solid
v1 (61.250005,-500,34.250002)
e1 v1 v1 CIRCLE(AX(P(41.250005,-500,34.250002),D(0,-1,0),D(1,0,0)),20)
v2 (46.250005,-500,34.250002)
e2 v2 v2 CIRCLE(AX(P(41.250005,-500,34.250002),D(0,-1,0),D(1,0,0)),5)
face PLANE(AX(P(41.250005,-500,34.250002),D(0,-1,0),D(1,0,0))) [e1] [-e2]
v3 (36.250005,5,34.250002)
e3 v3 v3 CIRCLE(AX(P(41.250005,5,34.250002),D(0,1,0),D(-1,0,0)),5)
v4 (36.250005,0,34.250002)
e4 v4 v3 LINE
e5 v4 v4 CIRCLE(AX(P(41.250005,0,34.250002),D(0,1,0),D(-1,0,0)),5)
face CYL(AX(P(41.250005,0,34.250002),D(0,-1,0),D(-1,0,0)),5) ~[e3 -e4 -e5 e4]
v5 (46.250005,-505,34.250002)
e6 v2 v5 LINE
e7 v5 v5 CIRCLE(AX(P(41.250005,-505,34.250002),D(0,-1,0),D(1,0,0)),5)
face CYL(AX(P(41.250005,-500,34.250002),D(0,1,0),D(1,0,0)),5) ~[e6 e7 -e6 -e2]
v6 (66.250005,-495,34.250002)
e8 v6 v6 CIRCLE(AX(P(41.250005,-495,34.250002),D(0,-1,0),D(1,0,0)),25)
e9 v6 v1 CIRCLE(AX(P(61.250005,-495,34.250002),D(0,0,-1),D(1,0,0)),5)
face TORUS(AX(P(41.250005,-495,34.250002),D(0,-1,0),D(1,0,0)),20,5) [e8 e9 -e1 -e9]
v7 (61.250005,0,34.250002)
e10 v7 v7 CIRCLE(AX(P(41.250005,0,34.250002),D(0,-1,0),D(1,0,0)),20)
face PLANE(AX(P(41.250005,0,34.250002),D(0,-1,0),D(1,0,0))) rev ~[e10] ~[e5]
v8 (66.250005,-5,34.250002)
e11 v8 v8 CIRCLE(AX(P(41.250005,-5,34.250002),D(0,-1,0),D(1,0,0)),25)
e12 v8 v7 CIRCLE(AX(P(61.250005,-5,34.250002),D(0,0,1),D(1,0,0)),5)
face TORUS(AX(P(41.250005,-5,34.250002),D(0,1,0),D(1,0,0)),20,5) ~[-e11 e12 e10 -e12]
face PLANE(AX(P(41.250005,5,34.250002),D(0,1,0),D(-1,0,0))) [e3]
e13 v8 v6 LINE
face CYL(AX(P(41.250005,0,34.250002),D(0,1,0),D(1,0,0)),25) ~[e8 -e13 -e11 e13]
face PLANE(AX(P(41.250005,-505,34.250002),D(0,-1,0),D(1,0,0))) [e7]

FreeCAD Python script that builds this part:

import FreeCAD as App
import Part
import Sketcher

V = App.Vector


def edges_at(feature, points):
    """Names of the edges that pass closest to the given points."""
    edges = feature.Shape.Edges
    near = lambda p: min(range(len(edges)), key=lambda i: edges[i].distToShape(Part.Vertex(*p))[0])
    return sorted({f"Edge{near(p) + 1}" for p in points})

doc = App.newDocument("Part")
body = doc.addObject("PartDesign::Body", "Body")

# Sketch on XZ plane
sketch1 = body.newObject("Sketcher::SketchObject", "Sketch")
sketch1.AttachmentSupport = (doc.getObject("XZ_Plane"), [""])
sketch1.MapMode = "FlatFace"
sketch1.addGeometry(Part.Circle(V(41, 34, 0), V(0, 0, 1), 25), False)
sketch1.addConstraint([
    Sketcher.Constraint("Diameter", 0, 50.0),
    Sketcher.Constraint("DistanceX", -1, 1, 0, 3, 41.250005),
    Sketcher.Constraint("DistanceY", -1, 1, 0, 3, 34.250002),
])
pad1 = body.newObject("PartDesign::Pad", "Pad")
pad1.Profile = sketch1
pad1.Length = 500

# Sketch on XZ plane
sketch2 = body.newObject("Sketcher::SketchObject", "Sketch001")
sketch2.AttachmentSupport = (doc.getObject("XZ_Plane"), [""])
sketch2.MapMode = "FlatFace"
sketch2.addGeometry(Part.Circle(V(41, 34, 0), V(0, 0, 1), 5), False)
sketch2.addConstraint([
    Sketcher.Constraint("Diameter", 0, 10.0),
    Sketcher.Constraint("DistanceX", -1, 1, 0, 3, 41.250005),
    Sketcher.Constraint("DistanceY", -1, 1, 0, 3, 34.250002),
])
pad2 = body.newObject("PartDesign::Pad", "Pad001")
pad2.Profile = sketch2
pad2.Length = 5
pad2.Reversed = True

# Sketch on XZ plane
sketch3 = body.newObject("Sketcher::SketchObject", "Sketch002")
sketch3.AttachmentSupport = (doc.getObject("XZ_Plane"), [""])
sketch3.MapMode = "FlatFace"
sketch3.AttachmentOffset = App.Placement(V(0, 0, 500), App.Rotation())
sketch3.addGeometry(Part.Circle(V(41, 34, 0), V(0, 0, 1), 5), False)
sketch3.addConstraint([
    Sketcher.Constraint("Diameter", 0, 10.0),
    Sketcher.Constraint("DistanceX", -1, 1, 0, 3, 41.250005),
    Sketcher.Constraint("DistanceY", -1, 1, 0, 3, 34.250002),
])
pad3 = body.newObject("PartDesign::Pad", "Pad002")
pad3.Profile = sketch3
pad3.Length = 5
doc.recompute()

fillet = body.newObject("PartDesign::Fillet", "Fillet")
fillet.Base = (pad3, edges_at(pad3, [(16.25, 0, 34.25)]))
fillet.Radius = 5
doc.recompute()

fillet2 = body.newObject("PartDesign::Fillet", "Fillet001")
fillet2.Base = (fillet, edges_at(fillet, [(16.25, -500, 34.25)]))
fillet2.Radius = 5

doc.recompute()
